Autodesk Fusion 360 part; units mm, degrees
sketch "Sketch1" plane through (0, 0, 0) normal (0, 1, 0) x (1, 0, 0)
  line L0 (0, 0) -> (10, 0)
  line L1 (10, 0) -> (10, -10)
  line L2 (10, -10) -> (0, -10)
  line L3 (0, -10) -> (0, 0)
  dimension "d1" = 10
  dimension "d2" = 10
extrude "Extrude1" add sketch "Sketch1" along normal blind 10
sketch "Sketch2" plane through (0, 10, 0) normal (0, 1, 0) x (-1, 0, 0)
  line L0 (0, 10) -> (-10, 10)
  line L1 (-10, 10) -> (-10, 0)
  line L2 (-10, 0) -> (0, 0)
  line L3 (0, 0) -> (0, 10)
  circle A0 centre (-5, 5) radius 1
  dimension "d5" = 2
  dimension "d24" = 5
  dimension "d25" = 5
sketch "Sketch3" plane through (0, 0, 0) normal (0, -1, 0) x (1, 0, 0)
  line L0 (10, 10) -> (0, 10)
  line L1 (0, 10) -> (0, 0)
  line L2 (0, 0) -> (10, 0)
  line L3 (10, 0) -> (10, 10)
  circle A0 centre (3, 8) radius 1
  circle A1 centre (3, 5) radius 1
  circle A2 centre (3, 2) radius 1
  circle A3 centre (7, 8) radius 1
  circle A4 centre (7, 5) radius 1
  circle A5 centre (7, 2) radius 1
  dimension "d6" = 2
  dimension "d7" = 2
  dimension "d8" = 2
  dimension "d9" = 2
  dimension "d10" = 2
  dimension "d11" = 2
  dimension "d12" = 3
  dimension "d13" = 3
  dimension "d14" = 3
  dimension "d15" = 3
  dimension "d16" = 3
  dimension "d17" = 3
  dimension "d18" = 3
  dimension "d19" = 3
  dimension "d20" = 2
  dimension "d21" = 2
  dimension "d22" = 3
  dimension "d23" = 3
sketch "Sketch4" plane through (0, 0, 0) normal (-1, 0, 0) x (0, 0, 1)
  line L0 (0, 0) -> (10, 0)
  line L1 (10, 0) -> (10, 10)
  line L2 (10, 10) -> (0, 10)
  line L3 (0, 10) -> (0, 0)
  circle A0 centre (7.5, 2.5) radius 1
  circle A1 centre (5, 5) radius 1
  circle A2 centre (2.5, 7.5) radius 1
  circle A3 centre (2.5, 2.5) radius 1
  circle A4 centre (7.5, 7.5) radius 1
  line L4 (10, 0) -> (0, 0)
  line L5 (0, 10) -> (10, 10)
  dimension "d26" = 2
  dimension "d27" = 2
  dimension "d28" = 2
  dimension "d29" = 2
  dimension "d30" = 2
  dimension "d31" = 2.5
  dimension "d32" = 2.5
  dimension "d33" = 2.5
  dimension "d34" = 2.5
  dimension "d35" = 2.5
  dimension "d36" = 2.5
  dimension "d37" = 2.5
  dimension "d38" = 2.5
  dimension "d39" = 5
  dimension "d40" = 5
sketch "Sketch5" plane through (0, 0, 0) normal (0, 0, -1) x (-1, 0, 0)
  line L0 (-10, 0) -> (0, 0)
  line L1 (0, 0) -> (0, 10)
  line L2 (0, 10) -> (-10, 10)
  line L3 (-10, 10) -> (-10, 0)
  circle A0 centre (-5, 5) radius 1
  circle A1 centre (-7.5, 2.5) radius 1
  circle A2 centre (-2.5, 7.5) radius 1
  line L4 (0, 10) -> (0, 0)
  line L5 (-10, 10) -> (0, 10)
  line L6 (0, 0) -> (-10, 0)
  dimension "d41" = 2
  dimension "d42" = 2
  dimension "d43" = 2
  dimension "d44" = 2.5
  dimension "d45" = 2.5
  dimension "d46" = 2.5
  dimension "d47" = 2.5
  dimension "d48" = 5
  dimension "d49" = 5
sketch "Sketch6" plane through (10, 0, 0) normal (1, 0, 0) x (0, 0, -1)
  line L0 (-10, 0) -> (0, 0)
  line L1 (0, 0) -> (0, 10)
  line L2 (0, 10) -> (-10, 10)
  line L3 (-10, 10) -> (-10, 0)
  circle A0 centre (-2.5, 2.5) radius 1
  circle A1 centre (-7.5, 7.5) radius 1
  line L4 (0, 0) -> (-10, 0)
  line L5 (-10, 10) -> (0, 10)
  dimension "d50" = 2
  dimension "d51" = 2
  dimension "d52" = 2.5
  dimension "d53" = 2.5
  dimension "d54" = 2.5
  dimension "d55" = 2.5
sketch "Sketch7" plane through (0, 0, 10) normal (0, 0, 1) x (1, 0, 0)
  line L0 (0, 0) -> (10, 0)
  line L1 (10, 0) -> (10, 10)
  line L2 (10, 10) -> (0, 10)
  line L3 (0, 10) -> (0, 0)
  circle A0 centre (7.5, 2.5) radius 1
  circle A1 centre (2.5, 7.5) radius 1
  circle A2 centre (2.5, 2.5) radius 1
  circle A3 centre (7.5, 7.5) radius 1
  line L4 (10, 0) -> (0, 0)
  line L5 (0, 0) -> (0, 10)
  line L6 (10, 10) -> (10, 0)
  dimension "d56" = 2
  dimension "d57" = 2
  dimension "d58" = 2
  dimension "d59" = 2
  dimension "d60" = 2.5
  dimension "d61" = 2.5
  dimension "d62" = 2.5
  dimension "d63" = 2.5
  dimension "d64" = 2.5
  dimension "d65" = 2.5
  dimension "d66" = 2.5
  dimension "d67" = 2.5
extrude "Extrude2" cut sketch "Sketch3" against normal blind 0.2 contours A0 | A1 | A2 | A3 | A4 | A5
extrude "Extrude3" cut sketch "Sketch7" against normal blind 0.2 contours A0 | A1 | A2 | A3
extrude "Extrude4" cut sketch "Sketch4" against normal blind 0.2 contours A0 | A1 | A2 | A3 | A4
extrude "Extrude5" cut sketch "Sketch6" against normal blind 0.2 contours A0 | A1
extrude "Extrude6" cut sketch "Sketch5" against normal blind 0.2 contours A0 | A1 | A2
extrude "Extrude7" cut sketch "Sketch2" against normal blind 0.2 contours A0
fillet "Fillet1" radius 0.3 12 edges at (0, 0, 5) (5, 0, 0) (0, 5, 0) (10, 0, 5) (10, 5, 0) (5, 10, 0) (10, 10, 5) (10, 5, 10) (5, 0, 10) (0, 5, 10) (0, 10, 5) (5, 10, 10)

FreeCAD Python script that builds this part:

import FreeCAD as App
import Part
import Sketcher
from FreeCAD import Vector


def edges_at(feature, points):
    """Names of the edges that pass closest to the given points."""
    edges = feature.Shape.Edges
    near = lambda p: min(range(len(edges)), key=lambda i: edges[i].distToShape(Part.Vertex(*p))[0])
    return sorted({f"Edge{near(p) + 1}" for p in points})

doc = App.newDocument("Part")
body = doc.addObject("PartDesign::Body", "Body")

sketch1 = doc.addObject("Sketcher::SketchObject", "Sketch")
body.addObject(sketch1)
sketch1.AttachmentSupport = (doc.XZ_Plane, [""])
sketch1.MapMode = "FlatFace"
sketch1.addGeometry([
    Part.LineSegment(Vector(10, 0, 0), Vector(0, 0, 0)),
    Part.LineSegment(Vector(0, 0, 0), Vector(0, 10, 0)),
    Part.LineSegment(Vector(0, 10, 0), Vector(10, 10, 0)),
    Part.LineSegment(Vector(10, 10, 0), Vector(10, 0, 0)),
], False)
sketch1.addConstraint([
    Sketcher.Constraint("Coincident", 0, 2, 1, 1),
    Sketcher.Constraint("Coincident", 1, 2, 2, 1),
    Sketcher.Constraint("Coincident", 2, 2, 3, 1),
    Sketcher.Constraint("Coincident", 3, 2, 0, 1),
    Sketcher.Constraint("Horizontal", 0),
    Sketcher.Constraint("Vertical", 1),
    Sketcher.Constraint("Horizontal", 2),
    Sketcher.Constraint("Vertical", 3),
    Sketcher.Constraint("Coincident", 0, 2, -1, 1),
    Sketcher.Constraint("Equal", 2, 1),
    Sketcher.Constraint("DistanceX", 0, 2, 0, 1, 10.0),
])
pad1 = doc.addObject("PartDesign::Pad", "Pad")
body.addObject(pad1)
pad1.Profile = sketch1
pad1.Length = 10
pad1.Reversed = True

sketch2 = doc.addObject("Sketcher::SketchObject", "Sketch001")
body.addObject(sketch2)
sketch2.AttachmentSupport = (doc.XZ_Plane, [""])
sketch2.MapMode = "FlatFace"
sketch2.addGeometry([
    Part.Circle(Vector(3, 8, 0), Vector(0, 0, 1), 1),
    Part.Circle(Vector(3, 5, 0), Vector(0, 0, 1), 1),
    Part.Circle(Vector(3, 2, 0), Vector(0, 0, 1), 1),
    Part.Circle(Vector(7, 8, 0), Vector(0, 0, 1), 1),
    Part.Circle(Vector(7, 5, 0), Vector(0, 0, 1), 1),
    Part.Circle(Vector(7, 2, 0), Vector(0, 0, 1), 1),
], False)
sketch2.addConstraint([
    Sketcher.Constraint("Equal", 0, 1),
    Sketcher.Constraint("Equal", 1, 2),
    Sketcher.Constraint("Equal", 2, 3),
    Sketcher.Constraint("Equal", 3, 4),
    Sketcher.Constraint("Equal", 4, 5),
    Sketcher.Constraint("Horizontal", 0, 3, 3, 3),
    Sketcher.Constraint("Horizontal", 1, 3, 4, 3),
    Sketcher.Constraint("Horizontal", 2, 3, 5, 3),
    Sketcher.Constraint("Vertical", 0, 3, 1, 3),
    Sketcher.Constraint("Vertical", 1, 3, 2, 3),
    Sketcher.Constraint("Vertical", 3, 3, 4, 3),
    Sketcher.Constraint("Vertical", 4, 3, 5, 3),
    Sketcher.Constraint("Diameter", 0, 2.0),
    Sketcher.Constraint("DistanceX", -1, 1, 0, 3, 3.0),
    Sketcher.Constraint("DistanceY", -1, 1, 2, 3, 2.0),
    Sketcher.Constraint("DistanceY", 1, 3, 0, 3, 3.0),
    Sketcher.Constraint("DistanceY", 2, 3, 1, 3, 3.0),
    Sketcher.Constraint("DistanceX", -1, 1, 3, 3, 7.0),
])
pocket1 = doc.addObject("PartDesign::Pocket", "Pocket")
body.addObject(pocket1)
pocket1.Profile = sketch2
pocket1.Length = 0.2

sketch3 = doc.addObject("Sketcher::SketchObject", "Sketch002")
body.addObject(sketch3)
sketch3.AttachmentSupport = (doc.XY_Plane, [""])
sketch3.MapMode = "FlatFace"
sketch3.AttachmentOffset = App.Placement(Vector(0, 0, 10), App.Rotation())
sketch3.addGeometry([
    Part.Circle(Vector(7.5, 2.5, 0), Vector(0, 0, 1), 1),
    Part.Circle(Vector(2.5, 7.5, 0), Vector(0, 0, 1), 1),
    Part.Circle(Vector(2.5, 2.5, 0), Vector(0, 0, 1), 1),
    Part.Circle(Vector(7.5, 7.5, 0), Vector(0, 0, 1), 1),
], False)
sketch3.addConstraint([
    Sketcher.Constraint("Equal", 0, 1),
    Sketcher.Constraint("Equal", 1, 2),
    Sketcher.Constraint("Equal", 2, 3),
    Sketcher.Constraint("Horizontal", 0, 3, 2, 3),
    Sketcher.Constraint("Horizontal", 1, 3, 3, 3),
    Sketcher.Constraint("Vertical", 1, 3, 2, 3),
    Sketcher.Constraint("Vertical", 0, 3, 3, 3),
    Sketcher.Constraint("Diameter", 0, 2.0),
    Sketcher.Constraint("DistanceY", -1, 1, 0, 3, 2.5),
    Sketcher.Constraint("DistanceX", -1, 1, 1, 3, 2.5),
    Sketcher.Constraint("DistanceX", 1, 3, 0, 3, 5.0),
    Sketcher.Constraint("DistanceY", 0, 3, 1, 3, 5.0),
])
pocket2 = doc.addObject("PartDesign::Pocket", "Pocket001")
body.addObject(pocket2)
pocket2.Profile = sketch3
pocket2.Length = 0.2

sketch4 = doc.addObject("Sketcher::SketchObject", "Sketch003")
body.addObject(sketch4)
sketch4.AttachmentSupport = (doc.YZ_Plane, [""])
sketch4.MapMode = "FlatFace"
sketch4.addGeometry([
    Part.Circle(Vector(2.5, 7.5, 0), Vector(0, 0, 1), 1),
    Part.Circle(Vector(5, 5, 0), Vector(0, 0, 1), 1),
    Part.Circle(Vector(7.5, 2.5, 0), Vector(0, 0, 1), 1),
    Part.Circle(Vector(2.5, 2.5, 0), Vector(0, 0, 1), 1),
    Part.Circle(Vector(7.5, 7.5, 0), Vector(0, 0, 1), 1),
], False)
sketch4.addConstraint([
    Sketcher.Constraint("Equal", 0, 1),
    Sketcher.Constraint("Equal", 1, 2),
    Sketcher.Constraint("Equal", 2, 3),
    Sketcher.Constraint("Equal", 3, 4),
    Sketcher.Constraint("Horizontal", 2, 3, 3, 3),
    Sketcher.Constraint("Horizontal", 0, 3, 4, 3),
    Sketcher.Constraint("Vertical", 0, 3, 3, 3),
    Sketcher.Constraint("Vertical", 2, 3, 4, 3),
    Sketcher.Constraint("Diameter", 0, 2.0),
    Sketcher.Constraint("DistanceX", -1, 1, 1, 3, 5.0),
    Sketcher.Constraint("DistanceY", -1, 1, 1, 3, 5.0),
    Sketcher.Constraint("DistanceX", 0, 3, 2, 3, 5.0),
    Sketcher.Constraint("DistanceY", 2, 3, 0, 3, 5.0),
    Sketcher.Constraint("DistanceX", -1, 1, 0, 3, 2.5),
    Sketcher.Constraint("DistanceY", -1, 1, 2, 3, 2.5),
])
pocket3 = doc.addObject("PartDesign::Pocket", "Pocket002")
body.addObject(pocket3)
pocket3.Profile = sketch4
pocket3.Length = 0.2
pocket3.Reversed = True

sketch5 = doc.addObject("Sketcher::SketchObject", "Sketch004")
body.addObject(sketch5)
sketch5.AttachmentSupport = (doc.YZ_Plane, [""])
sketch5.MapMode = "FlatFace"
sketch5.AttachmentOffset = App.Placement(Vector(0, 0, 10), App.Rotation())
sketch5.addGeometry([
    Part.Circle(Vector(2.5, 2.5, 0), Vector(0, 0, 1), 1),
    Part.Circle(Vector(7.5, 7.5, 0), Vector(0, 0, 1), 1),
], False)
sketch5.addConstraint([
    Sketcher.Constraint("Equal", 0, 1),
    Sketcher.Constraint("Diameter", 0, 2.0),
    Sketcher.Constraint("DistanceX", -1, 1, 0, 3, 2.5),
    Sketcher.Constraint("DistanceY", -1, 1, 0, 3, 2.5),
    Sketcher.Constraint("DistanceX", 0, 3, 1, 3, 5.0),
    Sketcher.Constraint("DistanceY", 0, 3, 1, 3, 5.0),
])
pocket4 = doc.addObject("PartDesign::Pocket", "Pocket003")
body.addObject(pocket4)
pocket4.Profile = sketch5
pocket4.Length = 0.2

sketch6 = doc.addObject("Sketcher::SketchObject", "Sketch005")
body.addObject(sketch6)
sketch6.AttachmentSupport = (doc.XY_Plane, [""])
sketch6.MapMode = "FlatFace"
sketch6.addGeometry([
    Part.Circle(Vector(5, 5, 0), Vector(0, 0, 1), 1),
    Part.Circle(Vector(7.5, 2.5, 0), Vector(0, 0, 1), 1),
    Part.Circle(Vector(2.5, 7.5, 0), Vector(0, 0, 1), 1),
], False)
sketch6.addConstraint([
    Sketcher.Constraint("Equal", 0, 1),
    Sketcher.Constraint("Equal", 1, 2),
    Sketcher.Constraint("Diameter", 0, 2.0),
    Sketcher.Constraint("DistanceX", -1, 1, 0, 3, 5.0),
    Sketcher.Constraint("DistanceY", -1, 1, 0, 3, 5.0),
    Sketcher.Constraint("DistanceX", 2, 3, 1, 3, 5.0),
    Sketcher.Constraint("DistanceY", 1, 3, 2, 3, 5.0),
    Sketcher.Constraint("DistanceY", -1, 1, 1, 3, 2.5),
    Sketcher.Constraint("DistanceX", -1, 1, 2, 3, 2.5),
])
pocket5 = doc.addObject("PartDesign::Pocket", "Pocket004")
body.addObject(pocket5)
pocket5.Profile = sketch6
pocket5.Length = 0.2
pocket5.Reversed = True

sketch7 = doc.addObject("Sketcher::SketchObject", "Sketch006")
body.addObject(sketch7)
sketch7.AttachmentSupport = (doc.XZ_Plane, [""])
sketch7.MapMode = "FlatFace"
sketch7.AttachmentOffset = App.Placement(Vector(0, 0, -10), App.Rotation())
sketch7.addGeometry(Part.Circle(Vector(5, 5, 0), Vector(0, 0, 1), 1), False)
sketch7.addConstraint([
    Sketcher.Constraint("Diameter", 0, 2.0),
    Sketcher.Constraint("DistanceX", -1, 1, 0, 3, 5.0),
    Sketcher.Constraint("DistanceY", -1, 1, 0, 3, 5.0),
])
pocket6 = doc.addObject("PartDesign::Pocket", "Pocket005")
body.addObject(pocket6)
pocket6.Profile = sketch7
pocket6.Length = 0.2
pocket6.Reversed = True
doc.recompute()

fillet = doc.addObject("PartDesign::Fillet", "Fillet")
body.addObject(fillet)
fillet.Base = (pocket6, edges_at(pocket6, [
    (0, 0, 5),
    (5, 0, 0),
    (0, 5, 0),
    (10, 0, 5),
    (10, 5, 0),
    (5, 10, 0),
    (10, 10, 5),
    (10, 5, 10),
    (5, 0, 10),
    (0, 5, 10),
    (0, 10, 5),
    (5, 10, 10),
]))
fillet.Radius = 0.3

doc.recompute()
